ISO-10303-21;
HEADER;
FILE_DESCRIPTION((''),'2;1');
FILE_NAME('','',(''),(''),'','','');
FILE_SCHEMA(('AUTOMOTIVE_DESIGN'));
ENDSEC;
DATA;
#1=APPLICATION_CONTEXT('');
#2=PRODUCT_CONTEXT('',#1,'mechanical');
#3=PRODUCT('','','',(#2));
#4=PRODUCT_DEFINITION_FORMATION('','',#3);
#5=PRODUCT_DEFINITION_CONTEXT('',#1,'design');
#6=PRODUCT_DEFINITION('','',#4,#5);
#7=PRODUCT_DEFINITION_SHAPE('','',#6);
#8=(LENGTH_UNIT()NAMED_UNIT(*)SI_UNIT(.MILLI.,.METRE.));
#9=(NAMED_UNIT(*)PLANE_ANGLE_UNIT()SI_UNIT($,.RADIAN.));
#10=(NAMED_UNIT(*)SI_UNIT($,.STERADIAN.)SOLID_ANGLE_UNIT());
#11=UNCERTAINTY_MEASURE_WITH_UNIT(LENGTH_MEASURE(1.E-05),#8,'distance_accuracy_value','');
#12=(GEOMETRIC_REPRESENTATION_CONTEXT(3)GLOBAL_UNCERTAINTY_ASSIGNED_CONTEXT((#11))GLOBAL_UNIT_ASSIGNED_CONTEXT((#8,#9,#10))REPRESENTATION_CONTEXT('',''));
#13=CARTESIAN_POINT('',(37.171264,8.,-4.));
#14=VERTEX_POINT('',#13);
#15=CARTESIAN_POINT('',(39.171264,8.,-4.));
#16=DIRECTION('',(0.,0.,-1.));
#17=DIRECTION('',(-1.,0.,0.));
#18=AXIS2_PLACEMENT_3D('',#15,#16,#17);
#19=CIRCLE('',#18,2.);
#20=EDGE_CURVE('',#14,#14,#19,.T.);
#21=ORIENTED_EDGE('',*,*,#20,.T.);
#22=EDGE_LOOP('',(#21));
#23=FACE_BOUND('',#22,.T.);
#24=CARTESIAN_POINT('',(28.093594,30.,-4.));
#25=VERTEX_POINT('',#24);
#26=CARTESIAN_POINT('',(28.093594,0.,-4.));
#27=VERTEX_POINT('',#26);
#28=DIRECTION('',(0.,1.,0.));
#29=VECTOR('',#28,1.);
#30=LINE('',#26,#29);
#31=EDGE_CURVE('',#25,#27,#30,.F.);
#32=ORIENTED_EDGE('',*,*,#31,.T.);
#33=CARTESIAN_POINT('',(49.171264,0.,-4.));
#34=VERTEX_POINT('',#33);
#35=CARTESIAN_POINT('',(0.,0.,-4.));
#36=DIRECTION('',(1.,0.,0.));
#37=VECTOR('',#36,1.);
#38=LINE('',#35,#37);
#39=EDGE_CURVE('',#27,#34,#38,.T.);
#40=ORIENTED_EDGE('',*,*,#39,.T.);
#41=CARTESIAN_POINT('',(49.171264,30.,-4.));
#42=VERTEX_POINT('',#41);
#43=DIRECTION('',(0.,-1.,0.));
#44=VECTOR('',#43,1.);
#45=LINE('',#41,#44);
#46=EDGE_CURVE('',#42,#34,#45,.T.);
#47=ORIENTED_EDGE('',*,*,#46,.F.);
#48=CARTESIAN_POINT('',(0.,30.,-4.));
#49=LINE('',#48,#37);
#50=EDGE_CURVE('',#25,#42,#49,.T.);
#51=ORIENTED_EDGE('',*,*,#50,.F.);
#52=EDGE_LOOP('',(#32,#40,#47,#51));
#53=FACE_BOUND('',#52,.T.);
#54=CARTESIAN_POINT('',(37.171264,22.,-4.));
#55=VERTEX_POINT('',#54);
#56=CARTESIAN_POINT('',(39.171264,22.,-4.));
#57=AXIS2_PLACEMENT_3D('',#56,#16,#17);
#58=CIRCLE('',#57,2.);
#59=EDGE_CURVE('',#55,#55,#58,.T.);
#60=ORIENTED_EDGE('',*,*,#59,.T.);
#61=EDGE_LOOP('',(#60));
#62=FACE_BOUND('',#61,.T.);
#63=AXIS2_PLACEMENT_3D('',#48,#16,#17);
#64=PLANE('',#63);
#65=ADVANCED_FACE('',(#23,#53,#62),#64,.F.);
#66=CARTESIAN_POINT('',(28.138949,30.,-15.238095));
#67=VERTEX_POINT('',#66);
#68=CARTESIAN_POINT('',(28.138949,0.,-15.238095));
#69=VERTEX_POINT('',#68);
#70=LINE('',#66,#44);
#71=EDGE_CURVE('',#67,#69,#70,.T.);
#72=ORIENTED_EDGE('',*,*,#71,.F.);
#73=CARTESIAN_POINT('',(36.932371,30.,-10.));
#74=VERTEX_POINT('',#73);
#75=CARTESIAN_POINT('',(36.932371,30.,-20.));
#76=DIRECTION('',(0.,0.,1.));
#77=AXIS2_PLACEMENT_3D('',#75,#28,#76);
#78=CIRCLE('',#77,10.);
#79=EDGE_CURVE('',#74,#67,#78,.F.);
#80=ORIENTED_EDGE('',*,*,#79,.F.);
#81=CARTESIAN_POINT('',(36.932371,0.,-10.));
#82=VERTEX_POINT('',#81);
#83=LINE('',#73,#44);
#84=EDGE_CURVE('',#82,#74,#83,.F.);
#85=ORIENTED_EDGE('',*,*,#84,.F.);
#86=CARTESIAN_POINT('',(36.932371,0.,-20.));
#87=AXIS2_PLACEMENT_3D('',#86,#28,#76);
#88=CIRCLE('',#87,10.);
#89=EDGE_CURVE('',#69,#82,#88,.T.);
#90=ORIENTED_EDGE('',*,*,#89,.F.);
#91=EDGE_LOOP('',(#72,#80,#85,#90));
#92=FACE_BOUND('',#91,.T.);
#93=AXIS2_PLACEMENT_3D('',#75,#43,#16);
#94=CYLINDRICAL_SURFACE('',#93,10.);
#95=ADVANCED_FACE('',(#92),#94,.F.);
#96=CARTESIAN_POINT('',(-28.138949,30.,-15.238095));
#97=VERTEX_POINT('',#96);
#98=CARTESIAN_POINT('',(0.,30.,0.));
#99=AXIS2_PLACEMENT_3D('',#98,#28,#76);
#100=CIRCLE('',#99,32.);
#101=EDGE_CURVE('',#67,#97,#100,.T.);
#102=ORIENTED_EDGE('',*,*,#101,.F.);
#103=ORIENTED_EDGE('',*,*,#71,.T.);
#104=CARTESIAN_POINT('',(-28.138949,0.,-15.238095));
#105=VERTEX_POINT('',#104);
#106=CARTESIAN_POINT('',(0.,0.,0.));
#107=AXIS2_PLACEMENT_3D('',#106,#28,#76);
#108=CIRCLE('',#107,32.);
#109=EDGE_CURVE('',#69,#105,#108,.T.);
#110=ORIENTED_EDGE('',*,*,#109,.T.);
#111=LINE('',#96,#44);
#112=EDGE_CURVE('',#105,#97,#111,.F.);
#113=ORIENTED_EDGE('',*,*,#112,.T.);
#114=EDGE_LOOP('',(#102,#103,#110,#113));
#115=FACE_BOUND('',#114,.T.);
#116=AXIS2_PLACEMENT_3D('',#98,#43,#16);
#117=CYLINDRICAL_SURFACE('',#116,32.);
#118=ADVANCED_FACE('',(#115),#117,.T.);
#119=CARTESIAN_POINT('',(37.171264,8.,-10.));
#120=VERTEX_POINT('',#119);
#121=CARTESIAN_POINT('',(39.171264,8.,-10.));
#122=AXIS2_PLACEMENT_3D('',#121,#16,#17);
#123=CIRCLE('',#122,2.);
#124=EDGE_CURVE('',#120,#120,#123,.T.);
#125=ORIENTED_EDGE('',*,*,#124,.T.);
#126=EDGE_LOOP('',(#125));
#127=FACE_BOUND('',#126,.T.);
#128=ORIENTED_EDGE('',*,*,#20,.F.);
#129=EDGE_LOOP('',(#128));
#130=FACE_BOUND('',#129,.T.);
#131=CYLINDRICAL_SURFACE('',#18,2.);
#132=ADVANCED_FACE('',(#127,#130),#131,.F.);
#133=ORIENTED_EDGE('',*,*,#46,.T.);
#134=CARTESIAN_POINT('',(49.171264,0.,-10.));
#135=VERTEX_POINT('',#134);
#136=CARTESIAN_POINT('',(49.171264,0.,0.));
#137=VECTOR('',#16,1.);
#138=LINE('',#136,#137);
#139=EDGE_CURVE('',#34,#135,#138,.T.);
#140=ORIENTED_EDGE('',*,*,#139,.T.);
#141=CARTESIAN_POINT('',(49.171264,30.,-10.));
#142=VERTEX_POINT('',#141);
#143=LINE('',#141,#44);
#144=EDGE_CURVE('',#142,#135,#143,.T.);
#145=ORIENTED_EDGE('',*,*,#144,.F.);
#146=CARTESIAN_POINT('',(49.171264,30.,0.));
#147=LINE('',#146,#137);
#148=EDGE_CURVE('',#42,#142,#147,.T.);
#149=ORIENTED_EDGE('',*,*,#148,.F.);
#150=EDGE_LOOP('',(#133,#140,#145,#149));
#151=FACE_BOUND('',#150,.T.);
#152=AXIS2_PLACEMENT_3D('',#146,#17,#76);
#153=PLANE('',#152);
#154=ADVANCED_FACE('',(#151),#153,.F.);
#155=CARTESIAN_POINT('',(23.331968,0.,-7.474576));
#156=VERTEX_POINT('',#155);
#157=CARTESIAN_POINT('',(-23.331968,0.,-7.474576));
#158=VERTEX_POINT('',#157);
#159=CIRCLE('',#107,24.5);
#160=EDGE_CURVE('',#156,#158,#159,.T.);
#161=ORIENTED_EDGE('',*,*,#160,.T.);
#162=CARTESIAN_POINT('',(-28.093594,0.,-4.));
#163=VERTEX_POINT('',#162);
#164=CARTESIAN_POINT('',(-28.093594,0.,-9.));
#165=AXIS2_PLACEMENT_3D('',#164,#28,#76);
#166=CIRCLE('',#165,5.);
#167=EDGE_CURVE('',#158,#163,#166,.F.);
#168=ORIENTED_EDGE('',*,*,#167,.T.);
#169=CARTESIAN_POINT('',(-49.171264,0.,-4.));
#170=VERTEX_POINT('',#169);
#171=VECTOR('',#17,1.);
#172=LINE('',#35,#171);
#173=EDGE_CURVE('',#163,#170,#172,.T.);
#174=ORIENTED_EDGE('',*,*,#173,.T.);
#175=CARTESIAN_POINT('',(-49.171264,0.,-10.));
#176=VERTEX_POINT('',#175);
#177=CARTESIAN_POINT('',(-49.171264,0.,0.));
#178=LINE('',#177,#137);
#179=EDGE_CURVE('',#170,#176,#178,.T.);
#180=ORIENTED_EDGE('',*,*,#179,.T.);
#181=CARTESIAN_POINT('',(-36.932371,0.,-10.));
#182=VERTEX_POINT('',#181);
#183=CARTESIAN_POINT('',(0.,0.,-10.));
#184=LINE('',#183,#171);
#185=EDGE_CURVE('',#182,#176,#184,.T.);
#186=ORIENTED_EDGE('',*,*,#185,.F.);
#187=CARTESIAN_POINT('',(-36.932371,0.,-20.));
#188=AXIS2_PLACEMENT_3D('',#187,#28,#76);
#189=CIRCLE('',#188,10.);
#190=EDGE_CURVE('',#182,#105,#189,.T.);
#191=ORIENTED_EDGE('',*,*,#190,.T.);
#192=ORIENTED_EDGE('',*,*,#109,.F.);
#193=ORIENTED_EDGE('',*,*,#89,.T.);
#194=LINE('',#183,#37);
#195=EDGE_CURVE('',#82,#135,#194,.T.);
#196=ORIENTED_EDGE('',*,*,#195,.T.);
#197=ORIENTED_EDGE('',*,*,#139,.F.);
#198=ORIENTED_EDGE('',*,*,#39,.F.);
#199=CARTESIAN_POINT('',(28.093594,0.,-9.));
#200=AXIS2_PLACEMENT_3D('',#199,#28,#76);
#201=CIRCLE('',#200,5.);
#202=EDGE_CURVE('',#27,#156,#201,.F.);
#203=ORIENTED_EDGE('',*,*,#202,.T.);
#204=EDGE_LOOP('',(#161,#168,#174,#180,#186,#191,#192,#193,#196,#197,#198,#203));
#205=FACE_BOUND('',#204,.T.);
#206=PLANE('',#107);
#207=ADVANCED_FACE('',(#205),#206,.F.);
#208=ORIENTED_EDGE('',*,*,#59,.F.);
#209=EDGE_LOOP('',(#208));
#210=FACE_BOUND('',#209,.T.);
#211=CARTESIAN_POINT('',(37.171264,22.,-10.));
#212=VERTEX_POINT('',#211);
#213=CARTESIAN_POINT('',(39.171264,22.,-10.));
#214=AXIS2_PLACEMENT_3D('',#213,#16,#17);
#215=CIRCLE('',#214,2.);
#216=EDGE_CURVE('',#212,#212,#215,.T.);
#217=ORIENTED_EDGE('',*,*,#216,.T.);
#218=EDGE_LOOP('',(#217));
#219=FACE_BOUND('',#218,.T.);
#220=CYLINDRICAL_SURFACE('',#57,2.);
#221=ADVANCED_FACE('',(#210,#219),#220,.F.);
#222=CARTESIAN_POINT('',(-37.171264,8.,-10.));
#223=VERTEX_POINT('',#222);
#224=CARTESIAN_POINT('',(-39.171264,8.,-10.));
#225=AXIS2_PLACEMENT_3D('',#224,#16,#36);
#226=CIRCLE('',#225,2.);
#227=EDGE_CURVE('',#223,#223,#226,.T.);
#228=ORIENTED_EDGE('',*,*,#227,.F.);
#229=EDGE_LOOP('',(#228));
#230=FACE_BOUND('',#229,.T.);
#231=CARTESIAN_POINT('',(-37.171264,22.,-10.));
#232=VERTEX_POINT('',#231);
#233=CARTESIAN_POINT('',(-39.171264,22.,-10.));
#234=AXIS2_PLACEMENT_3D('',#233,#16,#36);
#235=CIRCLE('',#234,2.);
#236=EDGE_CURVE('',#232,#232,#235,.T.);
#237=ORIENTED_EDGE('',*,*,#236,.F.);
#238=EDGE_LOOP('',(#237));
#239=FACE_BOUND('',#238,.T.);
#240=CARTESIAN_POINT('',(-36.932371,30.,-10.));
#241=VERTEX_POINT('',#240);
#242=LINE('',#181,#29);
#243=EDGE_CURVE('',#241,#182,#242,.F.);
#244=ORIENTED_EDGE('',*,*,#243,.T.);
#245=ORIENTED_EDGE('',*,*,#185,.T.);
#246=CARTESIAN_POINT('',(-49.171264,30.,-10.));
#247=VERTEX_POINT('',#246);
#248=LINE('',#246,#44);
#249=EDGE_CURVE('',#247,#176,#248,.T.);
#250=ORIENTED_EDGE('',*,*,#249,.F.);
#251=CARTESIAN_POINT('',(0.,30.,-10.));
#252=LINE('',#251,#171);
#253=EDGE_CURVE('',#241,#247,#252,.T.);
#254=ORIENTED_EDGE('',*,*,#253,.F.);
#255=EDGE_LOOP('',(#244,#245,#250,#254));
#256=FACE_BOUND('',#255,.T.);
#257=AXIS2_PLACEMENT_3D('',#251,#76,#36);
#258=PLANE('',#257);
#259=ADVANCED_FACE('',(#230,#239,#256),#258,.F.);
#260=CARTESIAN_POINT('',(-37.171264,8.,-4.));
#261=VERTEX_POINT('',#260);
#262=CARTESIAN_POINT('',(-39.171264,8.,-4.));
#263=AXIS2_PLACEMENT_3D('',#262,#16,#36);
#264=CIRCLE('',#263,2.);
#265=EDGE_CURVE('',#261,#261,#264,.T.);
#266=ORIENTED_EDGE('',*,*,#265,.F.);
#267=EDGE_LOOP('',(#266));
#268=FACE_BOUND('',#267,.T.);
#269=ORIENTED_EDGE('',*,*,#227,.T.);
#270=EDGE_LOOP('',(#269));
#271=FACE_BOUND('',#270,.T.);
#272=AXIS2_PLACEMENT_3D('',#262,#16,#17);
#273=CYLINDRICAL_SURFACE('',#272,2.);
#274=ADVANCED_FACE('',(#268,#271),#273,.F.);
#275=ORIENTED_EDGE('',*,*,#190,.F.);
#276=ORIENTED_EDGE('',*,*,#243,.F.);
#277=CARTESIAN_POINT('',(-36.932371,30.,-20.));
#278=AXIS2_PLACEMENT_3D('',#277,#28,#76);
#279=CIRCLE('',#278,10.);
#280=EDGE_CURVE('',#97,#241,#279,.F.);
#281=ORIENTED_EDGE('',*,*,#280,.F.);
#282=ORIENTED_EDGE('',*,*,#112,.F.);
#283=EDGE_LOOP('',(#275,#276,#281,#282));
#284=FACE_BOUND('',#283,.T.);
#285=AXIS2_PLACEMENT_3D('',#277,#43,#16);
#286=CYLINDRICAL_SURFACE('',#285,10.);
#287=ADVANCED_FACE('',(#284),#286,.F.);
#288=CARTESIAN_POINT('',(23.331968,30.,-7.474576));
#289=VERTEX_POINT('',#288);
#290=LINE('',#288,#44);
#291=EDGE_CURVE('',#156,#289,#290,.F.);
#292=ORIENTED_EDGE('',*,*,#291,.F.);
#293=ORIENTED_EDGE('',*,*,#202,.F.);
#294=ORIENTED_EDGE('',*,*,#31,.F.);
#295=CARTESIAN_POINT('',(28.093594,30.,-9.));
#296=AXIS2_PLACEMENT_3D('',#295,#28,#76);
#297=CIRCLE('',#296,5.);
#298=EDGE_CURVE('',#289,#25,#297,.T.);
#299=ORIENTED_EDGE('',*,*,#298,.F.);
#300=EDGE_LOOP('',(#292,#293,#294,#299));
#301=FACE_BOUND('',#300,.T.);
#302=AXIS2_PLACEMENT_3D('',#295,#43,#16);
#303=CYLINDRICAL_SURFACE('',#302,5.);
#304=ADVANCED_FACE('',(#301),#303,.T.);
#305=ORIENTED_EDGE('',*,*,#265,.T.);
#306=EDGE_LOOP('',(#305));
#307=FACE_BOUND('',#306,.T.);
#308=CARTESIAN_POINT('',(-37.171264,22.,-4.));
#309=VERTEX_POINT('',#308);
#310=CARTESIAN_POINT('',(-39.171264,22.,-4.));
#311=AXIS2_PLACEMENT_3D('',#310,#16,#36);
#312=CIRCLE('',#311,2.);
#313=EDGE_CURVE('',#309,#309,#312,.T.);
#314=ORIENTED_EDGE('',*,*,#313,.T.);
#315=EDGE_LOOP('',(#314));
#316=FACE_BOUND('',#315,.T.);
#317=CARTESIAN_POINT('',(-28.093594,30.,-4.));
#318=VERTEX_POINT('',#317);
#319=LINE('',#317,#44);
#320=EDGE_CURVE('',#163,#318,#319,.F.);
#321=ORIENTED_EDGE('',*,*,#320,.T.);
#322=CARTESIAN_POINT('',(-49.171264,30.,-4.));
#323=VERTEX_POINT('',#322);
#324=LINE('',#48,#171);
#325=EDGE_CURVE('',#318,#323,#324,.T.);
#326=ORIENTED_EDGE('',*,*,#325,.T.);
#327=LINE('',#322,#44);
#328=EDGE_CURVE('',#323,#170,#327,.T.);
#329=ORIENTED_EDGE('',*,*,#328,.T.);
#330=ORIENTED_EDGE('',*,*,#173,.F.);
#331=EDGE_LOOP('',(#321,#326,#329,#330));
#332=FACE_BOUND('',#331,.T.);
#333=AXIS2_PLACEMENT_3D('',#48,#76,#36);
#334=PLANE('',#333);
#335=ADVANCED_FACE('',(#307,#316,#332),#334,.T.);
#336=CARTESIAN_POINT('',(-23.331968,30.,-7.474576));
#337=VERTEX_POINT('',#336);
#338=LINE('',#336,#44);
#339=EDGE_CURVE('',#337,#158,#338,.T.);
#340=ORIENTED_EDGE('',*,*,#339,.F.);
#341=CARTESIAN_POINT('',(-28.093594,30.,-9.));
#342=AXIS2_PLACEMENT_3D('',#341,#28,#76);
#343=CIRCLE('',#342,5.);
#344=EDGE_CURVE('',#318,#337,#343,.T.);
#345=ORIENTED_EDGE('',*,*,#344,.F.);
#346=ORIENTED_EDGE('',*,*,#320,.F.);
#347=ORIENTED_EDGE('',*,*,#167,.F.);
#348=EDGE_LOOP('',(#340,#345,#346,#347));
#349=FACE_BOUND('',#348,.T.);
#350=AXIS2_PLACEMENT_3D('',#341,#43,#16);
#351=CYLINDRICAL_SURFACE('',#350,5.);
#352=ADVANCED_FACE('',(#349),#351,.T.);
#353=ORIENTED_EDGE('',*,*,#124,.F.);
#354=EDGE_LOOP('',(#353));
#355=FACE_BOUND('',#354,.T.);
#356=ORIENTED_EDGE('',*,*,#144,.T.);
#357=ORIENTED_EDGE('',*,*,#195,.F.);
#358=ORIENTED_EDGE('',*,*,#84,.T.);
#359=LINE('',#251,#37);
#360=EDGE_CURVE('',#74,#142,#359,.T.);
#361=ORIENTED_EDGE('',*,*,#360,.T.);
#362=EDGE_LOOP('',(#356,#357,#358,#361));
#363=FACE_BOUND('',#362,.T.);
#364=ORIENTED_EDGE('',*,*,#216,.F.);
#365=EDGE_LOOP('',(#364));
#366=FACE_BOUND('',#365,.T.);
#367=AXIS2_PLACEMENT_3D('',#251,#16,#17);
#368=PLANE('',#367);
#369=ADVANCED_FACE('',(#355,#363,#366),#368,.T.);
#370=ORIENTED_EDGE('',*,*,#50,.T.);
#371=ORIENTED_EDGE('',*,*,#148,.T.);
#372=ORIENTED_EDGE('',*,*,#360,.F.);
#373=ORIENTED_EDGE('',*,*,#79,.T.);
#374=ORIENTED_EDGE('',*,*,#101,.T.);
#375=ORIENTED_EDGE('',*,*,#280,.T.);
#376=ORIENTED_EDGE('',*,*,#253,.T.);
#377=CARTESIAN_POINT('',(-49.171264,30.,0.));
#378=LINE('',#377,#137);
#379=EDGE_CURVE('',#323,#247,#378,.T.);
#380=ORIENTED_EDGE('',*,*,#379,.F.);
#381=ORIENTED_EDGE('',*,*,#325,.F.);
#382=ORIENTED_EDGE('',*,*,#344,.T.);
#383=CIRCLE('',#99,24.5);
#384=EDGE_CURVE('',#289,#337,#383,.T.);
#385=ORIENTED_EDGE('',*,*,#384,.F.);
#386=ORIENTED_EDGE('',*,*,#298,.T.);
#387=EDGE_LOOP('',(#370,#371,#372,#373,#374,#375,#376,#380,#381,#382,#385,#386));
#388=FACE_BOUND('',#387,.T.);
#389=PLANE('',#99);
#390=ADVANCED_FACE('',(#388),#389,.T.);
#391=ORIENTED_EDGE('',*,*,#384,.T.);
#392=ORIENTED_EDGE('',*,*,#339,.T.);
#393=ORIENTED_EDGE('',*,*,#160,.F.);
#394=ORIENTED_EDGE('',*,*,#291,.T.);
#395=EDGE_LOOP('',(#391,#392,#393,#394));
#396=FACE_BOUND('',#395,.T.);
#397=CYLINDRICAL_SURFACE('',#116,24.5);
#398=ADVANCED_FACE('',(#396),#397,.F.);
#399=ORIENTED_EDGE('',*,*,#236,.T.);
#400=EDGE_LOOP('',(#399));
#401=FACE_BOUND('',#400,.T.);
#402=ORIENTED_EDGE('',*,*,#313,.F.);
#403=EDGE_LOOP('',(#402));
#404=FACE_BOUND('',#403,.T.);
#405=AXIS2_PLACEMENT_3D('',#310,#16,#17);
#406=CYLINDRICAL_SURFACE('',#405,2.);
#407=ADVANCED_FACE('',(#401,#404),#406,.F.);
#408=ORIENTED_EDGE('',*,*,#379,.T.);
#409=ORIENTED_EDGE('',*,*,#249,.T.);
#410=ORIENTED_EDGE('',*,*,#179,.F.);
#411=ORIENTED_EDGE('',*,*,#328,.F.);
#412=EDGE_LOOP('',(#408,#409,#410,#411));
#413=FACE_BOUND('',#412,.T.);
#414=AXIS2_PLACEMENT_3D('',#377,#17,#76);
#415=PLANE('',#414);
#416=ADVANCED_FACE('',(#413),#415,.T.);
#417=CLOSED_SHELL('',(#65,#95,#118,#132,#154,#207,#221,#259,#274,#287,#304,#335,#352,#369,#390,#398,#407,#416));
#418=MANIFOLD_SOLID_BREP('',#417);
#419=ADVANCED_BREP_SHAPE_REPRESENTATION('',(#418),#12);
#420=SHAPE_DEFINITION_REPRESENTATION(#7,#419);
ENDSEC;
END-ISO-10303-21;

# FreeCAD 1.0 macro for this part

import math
import FreeCAD as App
import Part
import Sketcher


def edges_at(feature, points):
    """Names of the edges that pass closest to the given points."""
    edges = feature.Shape.Edges
    near = lambda p: min(range(len(edges)), key=lambda i: edges[i].distToShape(Part.Vertex(*p))[0])
    return sorted({f"Edge{near(p) + 1}" for p in points})

doc = App.newDocument("Part")
body = doc.addObject("PartDesign::Body", "Body")

# Sketch on XZ plane
sketch1 = doc.addObject("Sketcher::SketchObject", "Sketch")
body.addObject(sketch1)
sketch1.AttachmentSupport = (doc.XZ_Plane, [""])
sketch1.MapMode = "FlatFace"
sketch1.addGeometry([
    Part.ArcOfCircle(Part.Circle(App.Vector(0, 0, 0), App.Vector(0, 0, 1), 25), math.radians(-171), math.radians(-9)),  # 0
    Part.LineSegment(App.Vector(24, -4, 0), App.Vector(49, -4, 0)),  # 1
    Part.LineSegment(App.Vector(49, -4, 0), App.Vector(49, -10, 0)),  # 2
    Part.LineSegment(App.Vector(49, -10, 0), App.Vector(30, -10, 0)),  # 3
    Part.ArcOfCircle(Part.Circle(App.Vector(0, 0, 0), App.Vector(0, 0, 1), 32), math.radians(-162), math.radians(-18)),  # 4
    Part.LineSegment(App.Vector(-30, -10, 0), App.Vector(-49, -10, 0)),  # 5
    Part.LineSegment(App.Vector(-49, -10, 0), App.Vector(-49, -4, 0)),  # 6
    Part.LineSegment(App.Vector(-49, -4, 0), App.Vector(-24, -4, 0)),  # 7
], False)
sketch1.addConstraint([
    Sketcher.Constraint("Coincident", 0, 2, 1, 1),
    Sketcher.Constraint("Coincident", 1, 2, 2, 1),
    Sketcher.Constraint("Coincident", 2, 2, 3, 1),
    Sketcher.Constraint("Coincident", 3, 2, 4, 2),
    Sketcher.Constraint("Coincident", 4, 1, 5, 1),
    Sketcher.Constraint("Coincident", 5, 2, 6, 1),
    Sketcher.Constraint("Coincident", 6, 2, 7, 1),
    Sketcher.Constraint("Coincident", 7, 2, 0, 1),
    Sketcher.Constraint("Horizontal", 1),
    Sketcher.Constraint("Vertical", 2),
    Sketcher.Constraint("Horizontal", 3),
    Sketcher.Constraint("Horizontal", 5),
    Sketcher.Constraint("Vertical", 6),
    Sketcher.Constraint("Horizontal", 7),
    Sketcher.Constraint("Coincident", 0, 3, -1, 1),
    Sketcher.Constraint("Coincident", 4, 3, -1, 1),
    Sketcher.Constraint("Symmetric", 2, 2, 5, 2, -2),
    Sketcher.Constraint("Horizontal", 1, 2, 6, 2),
    Sketcher.Constraint("Radius", 4, 32.0),
    Sketcher.Constraint("Radius", 0, 24.5),
    Sketcher.Constraint("DistanceX", 1, 1, 1, 2, 25.0),
    Sketcher.Constraint("DistanceY", 2, 2, 2, 1, 6.0),
    Sketcher.Constraint("DistanceY", 0, 2, -1, 1, 4.0),
])
pad1 = doc.addObject("PartDesign::Pad", "Pad")
body.addObject(pad1)
pad1.Profile = sketch1
pad1.Length = 30
pad1.Reversed = True

# Sketch on XY plane
sketch2 = doc.addObject("Sketcher::SketchObject", "Sketch001")
body.addObject(sketch2)
sketch2.AttachmentSupport = (doc.XY_Plane, [""])
sketch2.MapMode = "FlatFace"
sketch2.AttachmentOffset = App.Placement(App.Vector(0, 0, -10), App.Rotation())
sketch2.addGeometry([
    Part.Circle(App.Vector(39.2, 22, 0), App.Vector(0, 0, 1), 2),
    Part.Circle(App.Vector(39.2, 8, 0), App.Vector(0, 0, 1), 2),
    Part.Circle(App.Vector(-39.2, 8, 0), App.Vector(0, 0, 1), 2),
    Part.Circle(App.Vector(-39.2, 22, 0), App.Vector(0, 0, 1), 2),
], False)
sketch2.addConstraint([
    Sketcher.Constraint("Equal", 0, 1),
    Sketcher.Constraint("Equal", 1, 2),
    Sketcher.Constraint("Equal", 2, 3),
    Sketcher.Constraint("Symmetric", 1, 3, 2, 3, -2),
    Sketcher.Constraint("Symmetric", 0, 3, 3, 3, -2),
    Sketcher.Constraint("Vertical", 0, 3, 1, 3),
    Sketcher.Constraint("Diameter", 0, 4.0),
    Sketcher.Constraint("DistanceY", -1, 1, 0, 3, 22.0),
    Sketcher.Constraint("DistanceY", -1, 1, 1, 3, 8.0),
    Sketcher.Constraint("DistanceX", -1, 1, 0, 3, 39.171264),
])
pocket1 = doc.addObject("PartDesign::Pocket", "Pocket")
body.addObject(pocket1)
pocket1.Profile = sketch2
pocket1.Type = "ThroughAll"
pocket1.Reversed = True
doc.recompute()

fillet = doc.addObject("PartDesign::Fillet", "Fillet")
body.addObject(fillet)
fillet.Base = (pocket1, edges_at(pocket1, [(-30.397, 15, -10), (30.397, 15, -10)]))
fillet.Radius = 10
doc.recompute()

fillet2 = doc.addObject("PartDesign::Fillet", "Fillet001")
body.addObject(fillet2)
fillet2.Base = (fillet, edges_at(fillet, [(-24.171, 15, -4), (24.171, 15, -4)]))
fillet2.Radius = 5

doc.recompute()
